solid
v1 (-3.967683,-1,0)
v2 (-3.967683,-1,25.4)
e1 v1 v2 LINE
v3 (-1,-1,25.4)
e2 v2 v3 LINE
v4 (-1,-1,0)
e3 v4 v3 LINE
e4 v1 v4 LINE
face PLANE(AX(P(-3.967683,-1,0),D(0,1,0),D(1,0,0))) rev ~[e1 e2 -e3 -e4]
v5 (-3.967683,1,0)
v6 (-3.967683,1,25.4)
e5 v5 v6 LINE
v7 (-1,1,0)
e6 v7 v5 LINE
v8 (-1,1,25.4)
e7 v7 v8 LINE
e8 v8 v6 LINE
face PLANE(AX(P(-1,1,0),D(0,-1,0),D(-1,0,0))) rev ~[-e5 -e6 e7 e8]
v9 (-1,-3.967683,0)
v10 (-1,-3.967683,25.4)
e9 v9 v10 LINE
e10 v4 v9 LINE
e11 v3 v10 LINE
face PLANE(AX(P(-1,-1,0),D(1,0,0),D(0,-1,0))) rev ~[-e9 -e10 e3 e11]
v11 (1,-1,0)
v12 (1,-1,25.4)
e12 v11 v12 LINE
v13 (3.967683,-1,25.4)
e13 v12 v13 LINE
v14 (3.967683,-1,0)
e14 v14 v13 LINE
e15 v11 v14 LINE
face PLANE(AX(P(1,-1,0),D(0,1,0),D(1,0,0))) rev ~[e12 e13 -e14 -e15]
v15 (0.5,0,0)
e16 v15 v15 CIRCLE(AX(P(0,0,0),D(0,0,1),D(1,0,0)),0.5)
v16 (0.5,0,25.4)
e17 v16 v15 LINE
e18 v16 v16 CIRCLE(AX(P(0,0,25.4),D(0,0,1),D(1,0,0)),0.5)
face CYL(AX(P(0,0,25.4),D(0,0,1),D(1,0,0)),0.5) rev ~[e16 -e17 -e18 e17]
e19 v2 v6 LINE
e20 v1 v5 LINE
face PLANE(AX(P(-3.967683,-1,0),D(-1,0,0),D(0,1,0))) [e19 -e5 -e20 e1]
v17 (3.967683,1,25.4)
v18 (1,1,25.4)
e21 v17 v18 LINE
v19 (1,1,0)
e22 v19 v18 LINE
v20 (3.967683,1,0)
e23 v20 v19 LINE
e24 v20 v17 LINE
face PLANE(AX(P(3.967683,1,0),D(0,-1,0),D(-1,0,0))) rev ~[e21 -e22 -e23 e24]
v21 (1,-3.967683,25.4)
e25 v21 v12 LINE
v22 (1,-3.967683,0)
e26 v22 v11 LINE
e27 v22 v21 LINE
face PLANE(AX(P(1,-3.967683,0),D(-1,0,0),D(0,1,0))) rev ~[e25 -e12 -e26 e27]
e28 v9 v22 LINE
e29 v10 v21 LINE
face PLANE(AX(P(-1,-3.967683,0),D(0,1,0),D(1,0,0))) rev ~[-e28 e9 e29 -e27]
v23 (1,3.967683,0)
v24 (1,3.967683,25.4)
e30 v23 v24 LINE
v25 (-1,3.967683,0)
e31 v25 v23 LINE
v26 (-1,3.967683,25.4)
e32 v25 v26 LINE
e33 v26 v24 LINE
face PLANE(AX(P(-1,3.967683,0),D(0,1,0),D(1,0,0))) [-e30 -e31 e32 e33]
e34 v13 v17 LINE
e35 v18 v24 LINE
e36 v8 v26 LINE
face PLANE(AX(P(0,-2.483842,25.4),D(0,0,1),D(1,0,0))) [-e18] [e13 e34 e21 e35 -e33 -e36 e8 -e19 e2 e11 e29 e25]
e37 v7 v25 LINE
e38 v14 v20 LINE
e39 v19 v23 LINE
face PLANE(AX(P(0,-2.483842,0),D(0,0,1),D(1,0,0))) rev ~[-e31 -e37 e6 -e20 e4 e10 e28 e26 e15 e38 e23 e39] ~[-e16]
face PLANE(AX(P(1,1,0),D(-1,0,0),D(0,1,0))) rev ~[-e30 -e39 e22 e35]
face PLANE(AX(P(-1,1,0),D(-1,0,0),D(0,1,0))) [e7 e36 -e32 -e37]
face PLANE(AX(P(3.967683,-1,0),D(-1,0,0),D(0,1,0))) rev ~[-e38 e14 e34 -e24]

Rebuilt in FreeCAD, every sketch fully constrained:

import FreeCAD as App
import Part
import Sketcher

doc = App.newDocument("Part")
body = doc.addObject("PartDesign::Body", "Body")

# Sketch on XY plane
sketch1 = doc.addObject("Sketcher::SketchObject", "Sketch")
body.addObject(sketch1)
sketch1.AttachmentSupport = (doc.XY_Plane, [""])
sketch1.MapMode = "FlatFace"
sketch1.addGeometry(Part.LineSegment(App.Vector(-1, -4, 0), App.Vector(1, -4, 0)), False)
sketch1.addGeometry(Part.LineSegment(App.Vector(1, -4, 0), App.Vector(1, -1, 0)), False)
sketch1.addGeometry(Part.LineSegment(App.Vector(1, -1, 0), App.Vector(4, -1, 0)), False)
sketch1.addGeometry(Part.LineSegment(App.Vector(4, -1, 0), App.Vector(4, 1, 0)), False)
sketch1.addGeometry(Part.LineSegment(App.Vector(4, 1, 0), App.Vector(1, 1, 0)), False)
sketch1.addGeometry(Part.LineSegment(App.Vector(1, 1, 0), App.Vector(1, 4, 0)), False)
sketch1.addGeometry(Part.LineSegment(App.Vector(1, 4, 0), App.Vector(-1, 4, 0)), False)
sketch1.addGeometry(Part.LineSegment(App.Vector(-1, 4, 0), App.Vector(-1, 1, 0)), False)
sketch1.addGeometry(Part.LineSegment(App.Vector(-1, 1, 0), App.Vector(-4, 1, 0)), False)
sketch1.addGeometry(Part.LineSegment(App.Vector(-4, 1, 0), App.Vector(-4, -1, 0)), False)
sketch1.addGeometry(Part.LineSegment(App.Vector(-4, -1, 0), App.Vector(-1, -1, 0)), False)
sketch1.addGeometry(Part.LineSegment(App.Vector(-1, -1, 0), App.Vector(-1, -4, 0)), False)
sketch1.addConstraint(Sketcher.Constraint("Coincident", 0, 2, 1, 1))
sketch1.addConstraint(Sketcher.Constraint("Coincident", 1, 2, 2, 1))
sketch1.addConstraint(Sketcher.Constraint("Coincident", 2, 2, 3, 1))
sketch1.addConstraint(Sketcher.Constraint("Coincident", 3, 2, 4, 1))
sketch1.addConstraint(Sketcher.Constraint("Coincident", 4, 2, 5, 1))
sketch1.addConstraint(Sketcher.Constraint("Coincident", 5, 2, 6, 1))
sketch1.addConstraint(Sketcher.Constraint("Coincident", 6, 2, 7, 1))
sketch1.addConstraint(Sketcher.Constraint("Coincident", 7, 2, 8, 1))
sketch1.addConstraint(Sketcher.Constraint("Coincident", 8, 2, 9, 1))
sketch1.addConstraint(Sketcher.Constraint("Coincident", 9, 2, 10, 1))
sketch1.addConstraint(Sketcher.Constraint("Coincident", 10, 2, 11, 1))
sketch1.addConstraint(Sketcher.Constraint("Coincident", 11, 2, 0, 1))
sketch1.addConstraint(Sketcher.Constraint("Horizontal", 0))
sketch1.addConstraint(Sketcher.Constraint("Vertical", 1))
sketch1.addConstraint(Sketcher.Constraint("Horizontal", 2))
sketch1.addConstraint(Sketcher.Constraint("Vertical", 3))
sketch1.addConstraint(Sketcher.Constraint("Horizontal", 4))
sketch1.addConstraint(Sketcher.Constraint("Vertical", 5))
sketch1.addConstraint(Sketcher.Constraint("Horizontal", 6))
sketch1.addConstraint(Sketcher.Constraint("Vertical", 7))
sketch1.addConstraint(Sketcher.Constraint("Horizontal", 8))
sketch1.addConstraint(Sketcher.Constraint("Vertical", 9))
sketch1.addConstraint(Sketcher.Constraint("Horizontal", 10))
sketch1.addConstraint(Sketcher.Constraint("Vertical", 11))
sketch1.addConstraint(Sketcher.Constraint("Symmetric", 0, 2, 6, 2, -1, 1))
sketch1.addConstraint(Sketcher.Constraint("Symmetric", 2, 2, 8, 2, -1, 1))
sketch1.addConstraint(Sketcher.Constraint("Symmetric", 4, 2, 10, 2, -1, 1))
sketch1.addConstraint(Sketcher.Constraint("Symmetric", 4, 2, 7, 2, -2))
sketch1.addConstraint(Sketcher.Constraint("Equal", 10, 1))
sketch1.addConstraint(Sketcher.Constraint("Equal", 6, 3))
sketch1.addConstraint(Sketcher.Constraint("DistanceX", 0, 1, 0, 2, 2.0))
sketch1.addConstraint(Sketcher.Constraint("DistanceX", 2, 1, 2, 2, 2.967683))
pad1 = doc.addObject("PartDesign::Pad", "Pad")
body.addObject(pad1)
pad1.Profile = sketch1
pad1.Length = 25.4

# Sketch on XY plane
sketch2 = doc.addObject("Sketcher::SketchObject", "Sketch001")
body.addObject(sketch2)
sketch2.AttachmentSupport = (doc.XY_Plane, [""])
sketch2.MapMode = "FlatFace"
sketch2.AttachmentOffset = App.Placement(App.Vector(0, 0, 25.4), App.Rotation())
sketch2.addGeometry(Part.Circle(App.Vector(0, 0, 0), App.Vector(0, 0, 1), 0.5), False)
sketch2.addConstraint(Sketcher.Constraint("Coincident", 0, 3, -1, 1))
sketch2.addConstraint(Sketcher.Constraint("Diameter", 0, 1.0))
pocket1 = doc.addObject("PartDesign::Pocket", "Pocket")
body.addObject(pocket1)
pocket1.Profile = sketch2
pocket1.Type = "ThroughAll"

doc.recompute()
